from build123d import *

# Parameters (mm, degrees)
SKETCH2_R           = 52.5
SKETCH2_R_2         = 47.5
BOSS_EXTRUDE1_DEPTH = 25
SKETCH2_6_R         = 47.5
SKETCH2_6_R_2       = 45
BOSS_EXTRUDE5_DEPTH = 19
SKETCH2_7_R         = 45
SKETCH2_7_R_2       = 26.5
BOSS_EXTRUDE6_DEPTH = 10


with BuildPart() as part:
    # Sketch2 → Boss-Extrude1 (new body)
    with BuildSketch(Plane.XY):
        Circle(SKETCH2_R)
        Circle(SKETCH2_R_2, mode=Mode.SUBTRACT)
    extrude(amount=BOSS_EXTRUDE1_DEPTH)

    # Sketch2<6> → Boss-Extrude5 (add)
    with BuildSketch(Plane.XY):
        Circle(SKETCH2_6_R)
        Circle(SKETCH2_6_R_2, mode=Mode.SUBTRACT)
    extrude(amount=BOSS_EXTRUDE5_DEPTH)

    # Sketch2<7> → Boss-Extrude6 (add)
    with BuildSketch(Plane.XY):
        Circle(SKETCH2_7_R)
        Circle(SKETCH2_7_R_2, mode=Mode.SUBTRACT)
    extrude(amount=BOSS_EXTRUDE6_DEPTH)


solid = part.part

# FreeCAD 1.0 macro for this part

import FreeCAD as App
import Part
import Sketcher
from FreeCAD import Vector

doc = App.newDocument("Part")
body = doc.addObject("PartDesign::Body", "Body")

# Sketch on XY plane
sketch1 = doc.addObject("Sketcher::SketchObject", "Sketch")
body.addObject(sketch1)
sketch1.AttachmentSupport = (doc.XY_Plane, [""])
sketch1.MapMode = "FlatFace"
sketch1.addGeometry(Part.Circle(Vector(0, 0, 0), Vector(0, 0, 1), 52), False)
sketch1.addGeometry(Part.Circle(Vector(0, 0, 0), Vector(0, 0, 1), 48), False)
sketch1.addConstraint(Sketcher.Constraint("Coincident", 0, 3, -1, 1))
sketch1.addConstraint(Sketcher.Constraint("Coincident", 1, 3, -1, 1))
sketch1.addConstraint(Sketcher.Constraint("Diameter", 0, 105.0))
sketch1.addConstraint(Sketcher.Constraint("Diameter", 1, 95.0))
pad1 = doc.addObject("PartDesign::Pad", "Pad")
body.addObject(pad1)
pad1.Profile = sketch1
pad1.Length = 25

# Sketch on XY plane
sketch2 = doc.addObject("Sketcher::SketchObject", "Sketch001")
body.addObject(sketch2)
sketch2.AttachmentSupport = (doc.XY_Plane, [""])
sketch2.MapMode = "FlatFace"
sketch2.addGeometry(Part.Circle(Vector(0, 0, 0), Vector(0, 0, 1), 48), False)
sketch2.addGeometry(Part.Circle(Vector(0, 0, 0), Vector(0, 0, 1), 45), False)
sketch2.addConstraint(Sketcher.Constraint("Coincident", 0, 3, -1, 1))
sketch2.addConstraint(Sketcher.Constraint("Coincident", 1, 3, -1, 1))
sketch2.addConstraint(Sketcher.Constraint("Diameter", 0, 95.0))
sketch2.addConstraint(Sketcher.Constraint("Diameter", 1, 90.0))
pad2 = doc.addObject("PartDesign::Pad", "Pad001")
body.addObject(pad2)
pad2.Profile = sketch2
pad2.Length = 19

# Sketch on XY plane
sketch3 = doc.addObject("Sketcher::SketchObject", "Sketch002")
body.addObject(sketch3)
sketch3.AttachmentSupport = (doc.XY_Plane, [""])
sketch3.MapMode = "FlatFace"
sketch3.addGeometry(Part.Circle(Vector(0, 0, 0), Vector(0, 0, 1), 45), False)
sketch3.addGeometry(Part.Circle(Vector(0, 0, 0), Vector(0, 0, 1), 26), False)
sketch3.addConstraint(Sketcher.Constraint("Coincident", 0, 3, -1, 1))
sketch3.addConstraint(Sketcher.Constraint("Coincident", 1, 3, -1, 1))
sketch3.addConstraint(Sketcher.Constraint("Diameter", 0, 90.0))
sketch3.addConstraint(Sketcher.Constraint("Diameter", 1, 53.0))
pad3 = doc.addObject("PartDesign::Pad", "Pad002")
body.addObject(pad3)
pad3.Profile = sketch3
pad3.Length = 10

doc.recompute()
